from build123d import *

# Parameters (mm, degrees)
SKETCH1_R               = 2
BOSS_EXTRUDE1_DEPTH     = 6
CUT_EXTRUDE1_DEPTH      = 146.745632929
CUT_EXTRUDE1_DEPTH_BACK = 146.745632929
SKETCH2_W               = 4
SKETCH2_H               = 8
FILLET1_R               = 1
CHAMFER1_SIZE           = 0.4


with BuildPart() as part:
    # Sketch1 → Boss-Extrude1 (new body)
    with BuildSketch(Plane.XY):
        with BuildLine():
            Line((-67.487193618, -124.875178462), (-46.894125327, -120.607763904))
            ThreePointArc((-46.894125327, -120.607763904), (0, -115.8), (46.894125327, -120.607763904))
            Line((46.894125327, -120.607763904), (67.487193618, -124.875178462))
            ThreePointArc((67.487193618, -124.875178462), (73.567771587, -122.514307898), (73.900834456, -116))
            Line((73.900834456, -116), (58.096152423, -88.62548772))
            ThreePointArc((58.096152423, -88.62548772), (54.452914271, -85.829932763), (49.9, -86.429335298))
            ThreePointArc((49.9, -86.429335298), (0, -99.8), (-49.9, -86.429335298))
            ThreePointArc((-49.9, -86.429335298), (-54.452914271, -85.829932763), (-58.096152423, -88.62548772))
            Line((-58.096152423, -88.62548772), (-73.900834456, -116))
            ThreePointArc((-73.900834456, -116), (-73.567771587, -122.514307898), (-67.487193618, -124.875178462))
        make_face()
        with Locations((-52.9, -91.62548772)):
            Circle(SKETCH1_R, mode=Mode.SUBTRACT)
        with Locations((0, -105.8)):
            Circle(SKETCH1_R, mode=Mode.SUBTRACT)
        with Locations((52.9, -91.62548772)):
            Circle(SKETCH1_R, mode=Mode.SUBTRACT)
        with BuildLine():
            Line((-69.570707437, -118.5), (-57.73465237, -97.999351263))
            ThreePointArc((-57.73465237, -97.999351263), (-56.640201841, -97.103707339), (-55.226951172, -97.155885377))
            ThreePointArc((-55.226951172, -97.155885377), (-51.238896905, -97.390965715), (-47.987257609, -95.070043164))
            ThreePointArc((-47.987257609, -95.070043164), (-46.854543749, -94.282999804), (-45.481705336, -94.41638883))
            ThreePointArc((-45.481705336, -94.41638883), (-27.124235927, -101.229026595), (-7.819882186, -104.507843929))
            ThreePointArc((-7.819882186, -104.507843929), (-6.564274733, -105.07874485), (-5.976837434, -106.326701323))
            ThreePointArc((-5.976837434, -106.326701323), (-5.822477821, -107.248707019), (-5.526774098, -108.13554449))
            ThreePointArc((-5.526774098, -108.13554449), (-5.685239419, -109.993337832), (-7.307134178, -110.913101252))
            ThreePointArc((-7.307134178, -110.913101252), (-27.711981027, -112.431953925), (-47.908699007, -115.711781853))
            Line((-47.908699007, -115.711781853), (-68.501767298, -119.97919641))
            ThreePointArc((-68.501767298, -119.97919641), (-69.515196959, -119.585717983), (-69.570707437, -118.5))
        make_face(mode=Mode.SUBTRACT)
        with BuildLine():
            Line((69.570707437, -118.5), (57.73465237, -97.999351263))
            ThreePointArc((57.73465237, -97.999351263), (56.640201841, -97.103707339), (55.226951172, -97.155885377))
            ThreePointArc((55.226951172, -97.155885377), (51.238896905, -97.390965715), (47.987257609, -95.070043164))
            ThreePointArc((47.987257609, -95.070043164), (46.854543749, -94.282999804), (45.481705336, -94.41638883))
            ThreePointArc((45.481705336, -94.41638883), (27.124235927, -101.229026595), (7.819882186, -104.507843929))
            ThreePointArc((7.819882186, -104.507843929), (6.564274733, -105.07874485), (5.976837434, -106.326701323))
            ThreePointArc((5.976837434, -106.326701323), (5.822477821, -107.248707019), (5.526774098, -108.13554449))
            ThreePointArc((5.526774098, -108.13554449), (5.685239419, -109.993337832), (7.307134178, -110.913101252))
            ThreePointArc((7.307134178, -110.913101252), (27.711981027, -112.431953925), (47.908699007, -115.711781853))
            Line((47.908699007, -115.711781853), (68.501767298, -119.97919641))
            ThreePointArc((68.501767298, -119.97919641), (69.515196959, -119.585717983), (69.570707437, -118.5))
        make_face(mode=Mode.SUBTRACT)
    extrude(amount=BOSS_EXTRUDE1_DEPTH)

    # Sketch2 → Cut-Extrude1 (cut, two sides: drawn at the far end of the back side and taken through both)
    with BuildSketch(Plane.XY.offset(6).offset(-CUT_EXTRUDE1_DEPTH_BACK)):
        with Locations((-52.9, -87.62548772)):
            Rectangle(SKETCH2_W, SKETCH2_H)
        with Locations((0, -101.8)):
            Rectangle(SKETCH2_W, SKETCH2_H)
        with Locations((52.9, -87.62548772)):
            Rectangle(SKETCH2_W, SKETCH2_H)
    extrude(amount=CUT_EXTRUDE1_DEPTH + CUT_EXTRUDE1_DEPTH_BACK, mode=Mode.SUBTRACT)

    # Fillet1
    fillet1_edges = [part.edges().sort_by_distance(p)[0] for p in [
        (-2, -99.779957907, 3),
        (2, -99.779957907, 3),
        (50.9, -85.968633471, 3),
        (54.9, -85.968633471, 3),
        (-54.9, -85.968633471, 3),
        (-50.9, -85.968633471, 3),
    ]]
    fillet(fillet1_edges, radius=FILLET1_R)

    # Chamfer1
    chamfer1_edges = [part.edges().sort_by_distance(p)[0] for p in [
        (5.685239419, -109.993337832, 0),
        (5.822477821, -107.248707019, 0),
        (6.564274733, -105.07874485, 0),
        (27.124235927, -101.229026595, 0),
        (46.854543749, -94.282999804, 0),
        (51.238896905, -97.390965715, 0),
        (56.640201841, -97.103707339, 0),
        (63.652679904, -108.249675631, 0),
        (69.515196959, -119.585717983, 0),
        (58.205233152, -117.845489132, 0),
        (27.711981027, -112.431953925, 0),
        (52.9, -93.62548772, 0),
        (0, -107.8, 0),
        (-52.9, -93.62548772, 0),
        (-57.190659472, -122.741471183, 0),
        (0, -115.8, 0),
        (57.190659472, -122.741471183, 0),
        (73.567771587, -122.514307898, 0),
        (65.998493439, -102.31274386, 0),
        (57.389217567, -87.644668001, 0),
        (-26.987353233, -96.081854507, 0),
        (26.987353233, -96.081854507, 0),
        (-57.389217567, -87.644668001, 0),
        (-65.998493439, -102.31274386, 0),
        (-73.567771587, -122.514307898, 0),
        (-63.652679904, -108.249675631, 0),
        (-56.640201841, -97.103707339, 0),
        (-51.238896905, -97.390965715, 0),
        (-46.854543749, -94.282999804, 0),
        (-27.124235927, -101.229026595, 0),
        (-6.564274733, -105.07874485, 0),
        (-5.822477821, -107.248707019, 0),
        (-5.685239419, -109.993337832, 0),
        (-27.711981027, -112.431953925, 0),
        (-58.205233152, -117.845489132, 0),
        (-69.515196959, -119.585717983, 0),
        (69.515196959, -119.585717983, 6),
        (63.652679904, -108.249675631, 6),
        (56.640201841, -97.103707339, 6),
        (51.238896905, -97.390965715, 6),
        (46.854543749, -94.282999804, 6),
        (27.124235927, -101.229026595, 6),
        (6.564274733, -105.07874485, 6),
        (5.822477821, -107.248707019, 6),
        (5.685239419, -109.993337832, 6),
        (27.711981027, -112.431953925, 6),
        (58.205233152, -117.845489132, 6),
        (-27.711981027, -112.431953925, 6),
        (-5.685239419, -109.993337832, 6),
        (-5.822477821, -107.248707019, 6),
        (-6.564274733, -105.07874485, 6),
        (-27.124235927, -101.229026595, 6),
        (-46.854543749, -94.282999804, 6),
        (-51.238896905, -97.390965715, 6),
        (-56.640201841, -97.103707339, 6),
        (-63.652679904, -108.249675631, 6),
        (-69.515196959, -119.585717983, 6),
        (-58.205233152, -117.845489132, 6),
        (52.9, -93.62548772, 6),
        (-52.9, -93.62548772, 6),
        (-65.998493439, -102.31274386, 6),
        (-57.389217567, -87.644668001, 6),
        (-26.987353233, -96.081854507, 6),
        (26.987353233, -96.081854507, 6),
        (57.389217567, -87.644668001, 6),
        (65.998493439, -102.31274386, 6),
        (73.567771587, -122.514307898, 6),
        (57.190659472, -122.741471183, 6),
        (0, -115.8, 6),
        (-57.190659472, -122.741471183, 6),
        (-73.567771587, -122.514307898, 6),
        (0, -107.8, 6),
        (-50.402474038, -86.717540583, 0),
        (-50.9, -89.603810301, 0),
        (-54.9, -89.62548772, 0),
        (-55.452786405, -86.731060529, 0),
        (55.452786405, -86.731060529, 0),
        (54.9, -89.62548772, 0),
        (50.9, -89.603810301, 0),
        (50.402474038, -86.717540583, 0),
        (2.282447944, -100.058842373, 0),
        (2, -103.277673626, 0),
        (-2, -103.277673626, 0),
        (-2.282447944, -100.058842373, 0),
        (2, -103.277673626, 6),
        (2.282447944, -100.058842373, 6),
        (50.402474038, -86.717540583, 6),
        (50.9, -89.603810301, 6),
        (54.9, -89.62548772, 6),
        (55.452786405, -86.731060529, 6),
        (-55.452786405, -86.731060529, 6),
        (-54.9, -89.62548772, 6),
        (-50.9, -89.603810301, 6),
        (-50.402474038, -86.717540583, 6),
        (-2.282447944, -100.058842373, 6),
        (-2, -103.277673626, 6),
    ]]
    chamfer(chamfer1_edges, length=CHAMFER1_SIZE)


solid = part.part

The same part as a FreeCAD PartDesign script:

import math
import FreeCAD as App
import Part
import Sketcher
from FreeCAD import Vector
Q = App.Units.Quantity


def edges_at(feature, points):
    """Names of the edges that pass closest to the given points."""
    edges = feature.Shape.Edges
    near = lambda p: min(range(len(edges)), key=lambda i: edges[i].distToShape(Part.Vertex(*p))[0])
    return sorted({f"Edge{near(p) + 1}" for p in points})


def add_polygon(sketch, points):
    """Adds a closed chain of lines whose ends are joined by coincident constraints."""
    first, n = sketch.GeometryCount, len(points)
    for a, b in zip(points, points[1:] + points[:1]):
        sketch.addGeometry(Part.LineSegment(App.Vector(*a, 0), App.Vector(*b, 0)), False)
    for i in range(n):
        sketch.addConstraint(Sketcher.Constraint("Coincident", first + i, 2, first + (i + 1) % n, 1))

doc = App.newDocument("Part")
body = doc.addObject("PartDesign::Body", "Body")

# Sketch on XY plane
sketch1 = doc.addObject("Sketcher::SketchObject", "Sketch")
body.addObject(sketch1)
sketch1.AttachmentSupport = (doc.XY_Plane, [""])
sketch1.MapMode = "FlatFace"
sketch1.addGeometry([
    Part.LineSegment(Vector(-67.487194, -124.875178, 0), Vector(-46.894125, -120.607764, 0)),  # 0
    Part.ArcOfCircle(Part.Circle(Vector(0, -346.902611, 0), Vector(0, 0, 1), 231.102611), math.radians(78.292543), math.radians(101.707457)),  # 1
    Part.LineSegment(Vector(46.894125, -120.607764, 0), Vector(67.487194, -124.875178, 0)),  # 2
    Part.ArcOfCircle(Part.Circle(Vector(68.704682, -119, 0), Vector(0, 0, 1), 6), math.radians(-101.707457), math.radians(30)),  # 3
    Part.LineSegment(Vector(73.900834, -116, 0), Vector(58.096152, -88.625488, 0)),  # 4
    Part.ArcOfCircle(Part.Circle(Vector(52.9, -91.625488, 0), Vector(0, 0, 1), 6), math.radians(30), math.radians(120)),  # 5
    Part.ArcOfCircle(Part.Circle(Vector(0, 0, 0), Vector(0, 0, 1), 99.8), math.radians(-120), math.radians(-60)),  # 6
    Part.ArcOfCircle(Part.Circle(Vector(-52.9, -91.625488, 0), Vector(0, 0, 1), 6), math.radians(60), math.radians(150)),  # 7
    Part.LineSegment(Vector(-58.096152, -88.625488, 0), Vector(-73.900834, -116, 0)),  # 8
    Part.ArcOfCircle(Part.Circle(Vector(-68.704682, -119, 0), Vector(0, 0, 1), 6), math.radians(150), math.radians(281.707457)),  # 9
    Part.ArcOfCircle(Part.Circle(Vector(-68.704682, -119, 0), Vector(0, 0, 1), 1), math.radians(150), math.radians(281.707457)),  # 10
    Part.LineSegment(Vector(-69.570707, -118.5, 0), Vector(-57.734652, -97.999351, 0)),  # 11
    Part.ArcOfCircle(Part.Circle(Vector(-56.002602, -98.999351, 0), Vector(0, 0, 1), 2), math.radians(67.180756), math.radians(150)),  # 12
    Part.ArcOfCircle(Part.Circle(Vector(-52.9, -91.625488, 0), Vector(0, 0, 1), 6), math.radians(-112.819244), math.radians(-35.036109)),  # 13
    Part.ArcOfCircle(Part.Circle(Vector(-46.349677, -96.218228, 0), Vector(0, 0, 1), 2), math.radians(64.279228), math.radians(144.963891)),  # 14
    Part.ArcOfCircle(Part.Circle(Vector(0, 0, 0), Vector(0, 0, 1), 104.8), math.radians(-115.720772), math.radians(-94.279228)),  # 15
    Part.ArcOfCircle(Part.Circle(Vector(-7.969117, -106.502268, 0), Vector(0, 0, 1), 2), math.radians(5.036109), math.radians(85.720772)),  # 16
    Part.ArcOfCircle(Part.Circle(Vector(0, -105.8, 0), Vector(0, 0, 1), 6), math.radians(-174.963891), math.radians(-157.091698)),  # 17
    Part.ArcOfCircle(Part.Circle(Vector(-7.369032, -108.914059, 0), Vector(0, 0, 1), 2), math.radians(-88.226471), math.radians(22.908302)),  # 18
    Part.ArcOfCircle(Part.Circle(Vector(0, -346.902611, 0), Vector(0, 0, 1), 236.102611), math.radians(91.773529), math.radians(101.707457)),  # 19
    Part.LineSegment(Vector(-47.908699, -115.711782, 0), Vector(-68.501767, -119.979196, 0)),  # 20
    Part.Circle(Vector(0, -105.8, 0), Vector(0, 0, 1), 2),  # 21
    Part.LineSegment(Vector(57.734652, -97.999351, 0), Vector(69.570707, -118.5, 0)),  # 22
    Part.ArcOfCircle(Part.Circle(Vector(68.704682, -119, 0), Vector(0, 0, 1), 1), math.radians(-101.707457), math.radians(30)),  # 23
    Part.LineSegment(Vector(68.501767, -119.979196, 0), Vector(47.908699, -115.711782, 0)),  # 24
    Part.ArcOfCircle(Part.Circle(Vector(0, -346.902611, 0), Vector(0, 0, 1), 236.102611), math.radians(78.292543), math.radians(88.226471)),  # 25
    Part.ArcOfCircle(Part.Circle(Vector(7.369032, -108.914059, 0), Vector(0, 0, 1), 2), math.radians(157.091698), math.radians(268.226471)),  # 26
    Part.ArcOfCircle(Part.Circle(Vector(0, -105.8, 0), Vector(0, 0, 1), 6), math.radians(-22.908302), math.radians(-5.036109)),  # 27
    Part.ArcOfCircle(Part.Circle(Vector(7.969117, -106.502268, 0), Vector(0, 0, 1), 2), math.radians(94.279228), math.radians(174.963891)),  # 28
    Part.ArcOfCircle(Part.Circle(Vector(0, 0, 0), Vector(0, 0, 1), 104.8), math.radians(-85.720772), math.radians(-64.279228)),  # 29
    Part.ArcOfCircle(Part.Circle(Vector(46.349677, -96.218228, 0), Vector(0, 0, 1), 2), math.radians(35.036109), math.radians(115.720772)),  # 30
    Part.ArcOfCircle(Part.Circle(Vector(52.9, -91.625488, 0), Vector(0, 0, 1), 6), math.radians(-144.963891), math.radians(-67.180756)),  # 31
    Part.ArcOfCircle(Part.Circle(Vector(56.002602, -98.999351, 0), Vector(0, 0, 1), 2), math.radians(30), math.radians(112.819244)),  # 32
    Part.Circle(Vector(-52.9, -91.625488, 0), Vector(0, 0, 1), 2),  # 33
    Part.Circle(Vector(52.9, -91.625488, 0), Vector(0, 0, 1), 2),  # 34
], False)
sketch1.addConstraint([
    Sketcher.Constraint("Tangent", 0, 2, 1, 2),
    Sketcher.Constraint("Tangent", 1, 1, 2, 1),
    Sketcher.Constraint("Tangent", 2, 2, 3, 1),
    Sketcher.Constraint("Tangent", 3, 2, 4, 1),
    Sketcher.Constraint("Tangent", 4, 2, 5, 1),
    Sketcher.Constraint("Tangent", 5, 2, 6, 2),
    Sketcher.Constraint("Tangent", 6, 1, 7, 1),
    Sketcher.Constraint("Tangent", 7, 2, 8, 1),
    Sketcher.Constraint("Tangent", 8, 2, 9, 1),
    Sketcher.Constraint("Tangent", 9, 2, 0, 1),
    Sketcher.Constraint("Tangent", 10, 1, 11, 1),
    Sketcher.Constraint("Tangent", 11, 2, 12, 2),
    Sketcher.Constraint("Tangent", 12, 1, 13, 1),
    Sketcher.Constraint("Tangent", 13, 2, 14, 2),
    Sketcher.Constraint("Tangent", 14, 1, 15, 1),
    Sketcher.Constraint("Tangent", 15, 2, 16, 2),
    Sketcher.Constraint("Tangent", 16, 1, 17, 1),
    Sketcher.Constraint("Tangent", 17, 2, 18, 2),
    Sketcher.Constraint("Tangent", 18, 1, 19, 1),
    Sketcher.Constraint("Tangent", 19, 2, 20, 1),
    Sketcher.Constraint("Tangent", 20, 2, 10, 2),
    Sketcher.Constraint("Tangent", 22, 2, 23, 2),
    Sketcher.Constraint("Tangent", 23, 1, 24, 1),
    Sketcher.Constraint("Tangent", 24, 2, 25, 1),
    Sketcher.Constraint("Tangent", 25, 2, 26, 2),
    Sketcher.Constraint("Tangent", 26, 1, 27, 1),
    Sketcher.Constraint("Tangent", 27, 2, 28, 2),
    Sketcher.Constraint("Tangent", 28, 1, 29, 1),
    Sketcher.Constraint("Tangent", 29, 2, 30, 2),
    Sketcher.Constraint("Tangent", 30, 1, 31, 1),
    Sketcher.Constraint("Tangent", 31, 2, 32, 2),
    Sketcher.Constraint("Tangent", 32, 1, 22, 1),
    Sketcher.Constraint("Coincident", 6, 3, -1, 1),
    Sketcher.Constraint("Coincident", 15, 3, -1, 1),
    Sketcher.Constraint("Coincident", 29, 3, -1, 1),
    Sketcher.Constraint("Coincident", 10, 3, 9, 3),
    Sketcher.Constraint("Coincident", 13, 3, 7, 3),
    Sketcher.Constraint("Coincident", 19, 3, 1, 3),
    Sketcher.Constraint("Coincident", 21, 3, 17, 3),
    Sketcher.Constraint("Coincident", 23, 3, 3, 3),
    Sketcher.Constraint("Coincident", 25, 3, 1, 3),
    Sketcher.Constraint("Coincident", 27, 3, 17, 3),
    Sketcher.Constraint("Coincident", 31, 3, 5, 3),
    Sketcher.Constraint("Coincident", 33, 3, 7, 3),
    Sketcher.Constraint("Coincident", 34, 3, 5, 3),
    Sketcher.Constraint("Equal", 3, 5),
    Sketcher.Constraint("Equal", 5, 7),
    Sketcher.Constraint("Equal", 7, 9),
    Sketcher.Constraint("Equal", 9, 13),
    Sketcher.Constraint("Equal", 12, 14),
    Sketcher.Constraint("Equal", 14, 16),
    Sketcher.Constraint("Equal", 13, 17),
    Sketcher.Constraint("Equal", 16, 18),
    Sketcher.Constraint("Equal", 18, 21),
    Sketcher.Constraint("Equal", 10, 23),
    Sketcher.Constraint("Equal", 19, 25),
    Sketcher.Constraint("Equal", 21, 26),
    Sketcher.Constraint("Equal", 17, 27),
    Sketcher.Constraint("Equal", 26, 28),
    Sketcher.Constraint("Equal", 15, 29),
    Sketcher.Constraint("Equal", 28, 30),
    Sketcher.Constraint("Equal", 27, 31),
    Sketcher.Constraint("Equal", 30, 32),
    Sketcher.Constraint("Equal", 32, 33),
    Sketcher.Constraint("Equal", 33, 34),
    Sketcher.Constraint("Symmetric", 3, 3, 9, 3, -2),
    Sketcher.Constraint("Symmetric", 18, 3, 26, 3, -2),
    Sketcher.Constraint("Symmetric", 12, 3, 32, 3, -2),
    Sketcher.Constraint("Parallel", 8, 11),
    Sketcher.Constraint("Parallel", 0, 20),
    Sketcher.Constraint("Diameter", 21, 4.0),
    Sketcher.Constraint("Radius", 3, 6.0),
    Sketcher.Constraint("Radius", 10, 1.0),
    Sketcher.Constraint("Radius", 6, 99.8),
    Sketcher.Constraint("Radius", 15, 104.8),
    Sketcher.Constraint("Angle", 4, Q("120 deg")),
    Sketcher.Constraint("DistanceY", 3, 3, -1, 1, 119.0),
    Sketcher.Constraint("DistanceX", -1, 1, 5, 3, 52.9),
    Sketcher.Constraint("DistanceY", 17, 3, -1, 1, 105.8),
    Sketcher.Constraint("Radius", 1, 231.102611),
    Sketcher.Constraint("DistanceY", 18, 1, -1, 1, 110.913101),
])
pad1 = doc.addObject("PartDesign::Pad", "Pad")
body.addObject(pad1)
pad1.Profile = sketch1
pad1.Length = 6

# Sketch on XY plane
sketch2 = doc.addObject("Sketcher::SketchObject", "Sketch001")
body.addObject(sketch2)
sketch2.AttachmentSupport = (doc.XY_Plane, [""])
sketch2.MapMode = "FlatFace"
sketch2.AttachmentOffset = App.Placement(Vector(0, 0, 6), App.Rotation())
add_polygon(sketch2, [(-54.9, -83.625488), (-54.9, -91.625488), (-50.9, -91.625488), (-50.9, -83.625488)])  # lines 0-3
add_polygon(sketch2, [(-2, -97.8), (-2, -105.8), (2, -105.8), (2, -97.8)])  # lines 4-7
add_polygon(sketch2, [(50.9, -83.625488), (50.9, -91.625488), (54.9, -91.625488), (54.9, -83.625488)])  # lines 8-11
sketch2.addConstraint([
    Sketcher.Constraint("Vertical", 0),
    Sketcher.Constraint("Horizontal", 1),
    Sketcher.Constraint("Vertical", 2),
    Sketcher.Constraint("Horizontal", 3),
    Sketcher.Constraint("Vertical", 4),
    Sketcher.Constraint("Horizontal", 5),
    Sketcher.Constraint("Vertical", 6),
    Sketcher.Constraint("Horizontal", 7),
    Sketcher.Constraint("Vertical", 8),
    Sketcher.Constraint("Horizontal", 9),
    Sketcher.Constraint("Vertical", 10),
    Sketcher.Constraint("Horizontal", 11),
    Sketcher.Constraint("Symmetric", 1, 2, 8, 2, -2),
    Sketcher.Constraint("Symmetric", 3, 2, 10, 2, -2),
    Sketcher.Constraint("Equal", 3, 5),
    Sketcher.Constraint("Equal", 2, 4),
    Sketcher.Constraint("DistanceX", 1, 1, 1, 2, 4.0),
    Sketcher.Constraint("DistanceY", 0, 2, 0, 1, 8.0),
    Sketcher.Constraint("DistanceX", 4, 2, -1, 1, 2.0),
    Sketcher.Constraint("DistanceX", 0, 2, -1, 1, 54.9),
    Sketcher.Constraint("DistanceY", 4, 2, -1, 1, 105.8),
    Sketcher.Constraint("DistanceY", 0, 2, -1, 1, 91.625488),
])
pocket1 = doc.addObject("PartDesign::Pocket", "Pocket")
body.addObject(pocket1)
pocket1.Profile = sketch2
pocket1.Type = "ThroughAll"
pocket1.Midplane = True
doc.recompute()

fillet = doc.addObject("PartDesign::Fillet", "Fillet")
body.addObject(fillet)
fillet.Base = (pocket1, edges_at(pocket1, [
    (-2, -99.78, 3),
    (2, -99.78, 3),
    (50.9, -85.969, 3),
    (54.9, -85.969, 3),
    (-54.9, -85.969, 3),
    (-50.9, -85.969, 3),
]))
fillet.Radius = 1
doc.recompute()

chamfer = doc.addObject("PartDesign::Chamfer", "Chamfer")
body.addObject(chamfer)
chamfer.Base = (fillet, edges_at(fillet, [
    (5.685, -109.993, 0),
    (5.822, -107.249, 0),
    (6.564, -105.079, 0),
    (27.124, -101.229, 0),
    (46.855, -94.283, 0),
    (51.239, -97.391, 0),
    (56.64, -97.104, 0),
    (63.653, -108.25, 0),
    (69.515, -119.586, 0),
    (58.205, -117.845, 0),
    (27.712, -112.432, 0),
    (52.9, -93.625, 0),
    (0, -107.8, 0),
    (-52.9, -93.625, 0),
    (-57.191, -122.741, 0),
    (0, -115.8, 0),
    (57.191, -122.741, 0),
    (73.568, -122.514, 0),
    (65.998, -102.313, 0),
    (57.389, -87.645, 0),
    (-26.987, -96.082, 0),
    (26.987, -96.082, 0),
    (-57.389, -87.645, 0),
    (-65.998, -102.313, 0),
    (-73.568, -122.514, 0),
    (-63.653, -108.25, 0),
    (-56.64, -97.104, 0),
    (-51.239, -97.391, 0),
    (-46.855, -94.283, 0),
    (-27.124, -101.229, 0),
    (-6.564, -105.079, 0),
    (-5.822, -107.249, 0),
    (-5.685, -109.993, 0),
    (-27.712, -112.432, 0),
    (-58.205, -117.845, 0),
    (-69.515, -119.586, 0),
    (69.515, -119.586, 6),
    (63.653, -108.25, 6),
    (56.64, -97.104, 6),
    (51.239, -97.391, 6),
    (46.855, -94.283, 6),
    (27.124, -101.229, 6),
    (6.564, -105.079, 6),
    (5.822, -107.249, 6),
    (5.685, -109.993, 6),
    (27.712, -112.432, 6),
    (58.205, -117.845, 6),
    (-27.712, -112.432, 6),
    (-5.685, -109.993, 6),
    (-5.822, -107.249, 6),
    (-6.564, -105.079, 6),
    (-27.124, -101.229, 6),
    (-46.855, -94.283, 6),
    (-51.239, -97.391, 6),
    (-56.64, -97.104, 6),
    (-63.653, -108.25, 6),
    (-69.515, -119.586, 6),
    (-58.205, -117.845, 6),
    (52.9, -93.625, 6),
    (-52.9, -93.625, 6),
    (-65.998, -102.313, 6),
    (-57.389, -87.645, 6),
    (-26.987, -96.082, 6),
    (26.987, -96.082, 6),
    (57.389, -87.645, 6),
    (65.998, -102.313, 6),
    (73.568, -122.514, 6),
    (57.191, -122.741, 6),
    (0, -115.8, 6),
    (-57.191, -122.741, 6),
    (-73.568, -122.514, 6),
    (0, -107.8, 6),
    (-50.402, -86.718, 0),
    (-50.9, -89.604, 0),
    (-54.9, -89.625, 0),
    (-55.453, -86.731, 0),
    (55.453, -86.731, 0),
    (54.9, -89.625, 0),
    (50.9, -89.604, 0),
    (50.402, -86.718, 0),
    (2.282, -100.059, 0),
    (2, -103.278, 0),
    (-2, -103.278, 0),
    (-2.282, -100.059, 0),
    (2, -103.278, 6),
    (2.282, -100.059, 6),
    (50.402, -86.718, 6),
    (50.9, -89.604, 6),
    (54.9, -89.625, 6),
    (55.453, -86.731, 6),
    (-55.453, -86.731, 6),
    (-54.9, -89.625, 6),
    (-50.9, -89.604, 6),
    (-50.402, -86.718, 6),
    (-2.282, -100.059, 6),
    (-2, -103.278, 6),
]))
chamfer.Size = 0.4

doc.recompute()
